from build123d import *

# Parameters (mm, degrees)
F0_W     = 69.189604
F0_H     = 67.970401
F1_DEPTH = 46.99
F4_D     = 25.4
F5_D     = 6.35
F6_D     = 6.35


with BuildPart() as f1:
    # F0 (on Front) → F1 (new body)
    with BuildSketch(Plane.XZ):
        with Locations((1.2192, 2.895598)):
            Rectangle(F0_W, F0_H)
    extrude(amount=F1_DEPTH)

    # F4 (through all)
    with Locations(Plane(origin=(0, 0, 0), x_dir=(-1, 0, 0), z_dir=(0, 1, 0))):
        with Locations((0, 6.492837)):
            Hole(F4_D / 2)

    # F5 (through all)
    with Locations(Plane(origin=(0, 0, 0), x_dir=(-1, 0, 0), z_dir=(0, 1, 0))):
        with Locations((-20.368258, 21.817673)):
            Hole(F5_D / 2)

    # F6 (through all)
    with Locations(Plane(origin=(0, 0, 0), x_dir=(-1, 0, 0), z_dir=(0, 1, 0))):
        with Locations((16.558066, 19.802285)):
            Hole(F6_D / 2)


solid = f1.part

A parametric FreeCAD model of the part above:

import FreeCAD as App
import Part
import Sketcher
Q = App.Units.Quantity

doc = App.newDocument("Part")
params = doc.addObject("Spreadsheet::Sheet", "Params")
for row, (alias, value) in enumerate([
    ("sketch1_width", "2.7240002 in"),
    ("sketch1_height", "2.676 in"),
    ("pad1_length", "1.85 in"),
    ("sketch2_diameter", "1 in"),
    ("hole_diameter", "1 in"),
    ("sketch3_diameter", "0.25 in"),
    ("hole2_diameter", "0.25 in"),
    ("sketch4_diameter", "0.25 in"),
    ("hole3_diameter", "0.25 in"),
], start=1):
    params.set(f"A{row}", alias)
    params.set(f"B{row}", "=" + value)
    params.setAlias(f"B{row}", alias)

body = doc.addObject("PartDesign::Body", "Body")

# Sketch on XZ plane
sketch1 = body.newObject("Sketcher::SketchObject", "Sketch")
sketch1.AttachmentSupport = (doc.getObject("XZ_Plane"), [""])
sketch1.MapMode = "FlatFace"
sketch1.addGeometry([
    Part.LineSegment(App.Vector(-33, 37, 0), App.Vector(-33, -31, 0)),
    Part.LineSegment(App.Vector(-33, -31, 0), App.Vector(36, -31, 0)),
    Part.LineSegment(App.Vector(36, -31, 0), App.Vector(36, 37, 0)),
    Part.LineSegment(App.Vector(36, 37, 0), App.Vector(-33, 37, 0)),
], False)
sketch1.addConstraint([
    Sketcher.Constraint("Coincident", 0, 2, 1, 1),
    Sketcher.Constraint("Coincident", 1, 2, 2, 1),
    Sketcher.Constraint("Coincident", 2, 2, 3, 1),
    Sketcher.Constraint("Coincident", 3, 2, 0, 1),
    Sketcher.Constraint("Vertical", 0),
    Sketcher.Constraint("Horizontal", 1),
    Sketcher.Constraint("Vertical", 2),
    Sketcher.Constraint("Horizontal", 3),
    Sketcher.Constraint("DistanceX", 1, 1, 1, 2, Q("2.7240002 in")),
    Sketcher.Constraint("DistanceY", 0, 2, 0, 1, Q("2.676 in")),
    Sketcher.Constraint("DistanceX", -1, 1, 1, 2, Q("1.4100001 in")),
    Sketcher.Constraint("DistanceY", 0, 2, -1, 1, Q("1.2240001 in")),
])
sketch1.setExpression("Constraints[8]", "Params.sketch1_width")
sketch1.setExpression("Constraints[9]", "Params.sketch1_height")
pad1 = body.newObject("PartDesign::Pad", "Pad")
pad1.Profile = sketch1
pad1.setExpression("Length", "Params.pad1_length")

# Sketch on XZ plane
sketch2 = body.newObject("Sketcher::SketchObject", "Sketch001")
sketch2.AttachmentSupport = (doc.getObject("XZ_Plane"), [""])
sketch2.MapMode = "FlatFace"
sketch2.addGeometry(Part.Circle(App.Vector(0, 6, 0), App.Vector(0, 0, 1), 13), False)
sketch2.addConstraint([
    Sketcher.Constraint("PointOnObject", 0, 3, -2),
    Sketcher.Constraint("Diameter", 0, Q("1 in")),
    Sketcher.Constraint("DistanceY", -1, 1, 0, 3, Q("6.492837 mm")),
])
sketch2.setExpression("Constraints[1]", "Params.sketch2_diameter")
doc.recompute()
hole = body.newObject("PartDesign::Hole", "Hole")
hole.Profile = sketch2
hole.ThreadType = "None"
hole.setExpression("Diameter", "Params.hole_diameter")
hole.DepthType = "ThroughAll"
hole.Reversed = True

# Sketch on XZ plane
sketch3 = body.newObject("Sketcher::SketchObject", "Sketch002")
sketch3.AttachmentSupport = (doc.getObject("XZ_Plane"), [""])
sketch3.MapMode = "FlatFace"
sketch3.addGeometry(Part.Circle(App.Vector(20.4, 21.8, 0), App.Vector(0, 0, 1), 3.2), False)
sketch3.addConstraint([
    Sketcher.Constraint("Diameter", 0, Q("0.25 in")),
    Sketcher.Constraint("DistanceX", -1, 1, 0, 3, Q("0.8018999 in")),
    Sketcher.Constraint("DistanceY", -1, 1, 0, 3, Q("21.817673 mm")),
])
sketch3.setExpression("Constraints[0]", "Params.sketch3_diameter")
doc.recompute()
hole2 = body.newObject("PartDesign::Hole", "Hole001")
hole2.Profile = sketch3
hole2.ThreadType = "None"
hole2.setExpression("Diameter", "Params.hole2_diameter")
hole2.DepthType = "ThroughAll"
hole2.Reversed = True

# Sketch on XZ plane
sketch4 = body.newObject("Sketcher::SketchObject", "Sketch003")
sketch4.AttachmentSupport = (doc.getObject("XZ_Plane"), [""])
sketch4.MapMode = "FlatFace"
sketch4.addGeometry(Part.Circle(App.Vector(-16.6, 19.8, 0), App.Vector(0, 0, 1), 3.2), False)
sketch4.addConstraint([
    Sketcher.Constraint("Diameter", 0, Q("0.25 in")),
    Sketcher.Constraint("DistanceX", 0, 3, -1, 1, Q("16.558066 mm")),
    Sketcher.Constraint("DistanceY", -1, 1, 0, 3, Q("19.802285 mm")),
])
sketch4.setExpression("Constraints[0]", "Params.sketch4_diameter")
doc.recompute()
hole3 = body.newObject("PartDesign::Hole", "Hole002")
hole3.Profile = sketch4
hole3.ThreadType = "None"
hole3.setExpression("Diameter", "Params.hole3_diameter")
hole3.DepthType = "ThroughAll"
hole3.Reversed = True

doc.recompute()
